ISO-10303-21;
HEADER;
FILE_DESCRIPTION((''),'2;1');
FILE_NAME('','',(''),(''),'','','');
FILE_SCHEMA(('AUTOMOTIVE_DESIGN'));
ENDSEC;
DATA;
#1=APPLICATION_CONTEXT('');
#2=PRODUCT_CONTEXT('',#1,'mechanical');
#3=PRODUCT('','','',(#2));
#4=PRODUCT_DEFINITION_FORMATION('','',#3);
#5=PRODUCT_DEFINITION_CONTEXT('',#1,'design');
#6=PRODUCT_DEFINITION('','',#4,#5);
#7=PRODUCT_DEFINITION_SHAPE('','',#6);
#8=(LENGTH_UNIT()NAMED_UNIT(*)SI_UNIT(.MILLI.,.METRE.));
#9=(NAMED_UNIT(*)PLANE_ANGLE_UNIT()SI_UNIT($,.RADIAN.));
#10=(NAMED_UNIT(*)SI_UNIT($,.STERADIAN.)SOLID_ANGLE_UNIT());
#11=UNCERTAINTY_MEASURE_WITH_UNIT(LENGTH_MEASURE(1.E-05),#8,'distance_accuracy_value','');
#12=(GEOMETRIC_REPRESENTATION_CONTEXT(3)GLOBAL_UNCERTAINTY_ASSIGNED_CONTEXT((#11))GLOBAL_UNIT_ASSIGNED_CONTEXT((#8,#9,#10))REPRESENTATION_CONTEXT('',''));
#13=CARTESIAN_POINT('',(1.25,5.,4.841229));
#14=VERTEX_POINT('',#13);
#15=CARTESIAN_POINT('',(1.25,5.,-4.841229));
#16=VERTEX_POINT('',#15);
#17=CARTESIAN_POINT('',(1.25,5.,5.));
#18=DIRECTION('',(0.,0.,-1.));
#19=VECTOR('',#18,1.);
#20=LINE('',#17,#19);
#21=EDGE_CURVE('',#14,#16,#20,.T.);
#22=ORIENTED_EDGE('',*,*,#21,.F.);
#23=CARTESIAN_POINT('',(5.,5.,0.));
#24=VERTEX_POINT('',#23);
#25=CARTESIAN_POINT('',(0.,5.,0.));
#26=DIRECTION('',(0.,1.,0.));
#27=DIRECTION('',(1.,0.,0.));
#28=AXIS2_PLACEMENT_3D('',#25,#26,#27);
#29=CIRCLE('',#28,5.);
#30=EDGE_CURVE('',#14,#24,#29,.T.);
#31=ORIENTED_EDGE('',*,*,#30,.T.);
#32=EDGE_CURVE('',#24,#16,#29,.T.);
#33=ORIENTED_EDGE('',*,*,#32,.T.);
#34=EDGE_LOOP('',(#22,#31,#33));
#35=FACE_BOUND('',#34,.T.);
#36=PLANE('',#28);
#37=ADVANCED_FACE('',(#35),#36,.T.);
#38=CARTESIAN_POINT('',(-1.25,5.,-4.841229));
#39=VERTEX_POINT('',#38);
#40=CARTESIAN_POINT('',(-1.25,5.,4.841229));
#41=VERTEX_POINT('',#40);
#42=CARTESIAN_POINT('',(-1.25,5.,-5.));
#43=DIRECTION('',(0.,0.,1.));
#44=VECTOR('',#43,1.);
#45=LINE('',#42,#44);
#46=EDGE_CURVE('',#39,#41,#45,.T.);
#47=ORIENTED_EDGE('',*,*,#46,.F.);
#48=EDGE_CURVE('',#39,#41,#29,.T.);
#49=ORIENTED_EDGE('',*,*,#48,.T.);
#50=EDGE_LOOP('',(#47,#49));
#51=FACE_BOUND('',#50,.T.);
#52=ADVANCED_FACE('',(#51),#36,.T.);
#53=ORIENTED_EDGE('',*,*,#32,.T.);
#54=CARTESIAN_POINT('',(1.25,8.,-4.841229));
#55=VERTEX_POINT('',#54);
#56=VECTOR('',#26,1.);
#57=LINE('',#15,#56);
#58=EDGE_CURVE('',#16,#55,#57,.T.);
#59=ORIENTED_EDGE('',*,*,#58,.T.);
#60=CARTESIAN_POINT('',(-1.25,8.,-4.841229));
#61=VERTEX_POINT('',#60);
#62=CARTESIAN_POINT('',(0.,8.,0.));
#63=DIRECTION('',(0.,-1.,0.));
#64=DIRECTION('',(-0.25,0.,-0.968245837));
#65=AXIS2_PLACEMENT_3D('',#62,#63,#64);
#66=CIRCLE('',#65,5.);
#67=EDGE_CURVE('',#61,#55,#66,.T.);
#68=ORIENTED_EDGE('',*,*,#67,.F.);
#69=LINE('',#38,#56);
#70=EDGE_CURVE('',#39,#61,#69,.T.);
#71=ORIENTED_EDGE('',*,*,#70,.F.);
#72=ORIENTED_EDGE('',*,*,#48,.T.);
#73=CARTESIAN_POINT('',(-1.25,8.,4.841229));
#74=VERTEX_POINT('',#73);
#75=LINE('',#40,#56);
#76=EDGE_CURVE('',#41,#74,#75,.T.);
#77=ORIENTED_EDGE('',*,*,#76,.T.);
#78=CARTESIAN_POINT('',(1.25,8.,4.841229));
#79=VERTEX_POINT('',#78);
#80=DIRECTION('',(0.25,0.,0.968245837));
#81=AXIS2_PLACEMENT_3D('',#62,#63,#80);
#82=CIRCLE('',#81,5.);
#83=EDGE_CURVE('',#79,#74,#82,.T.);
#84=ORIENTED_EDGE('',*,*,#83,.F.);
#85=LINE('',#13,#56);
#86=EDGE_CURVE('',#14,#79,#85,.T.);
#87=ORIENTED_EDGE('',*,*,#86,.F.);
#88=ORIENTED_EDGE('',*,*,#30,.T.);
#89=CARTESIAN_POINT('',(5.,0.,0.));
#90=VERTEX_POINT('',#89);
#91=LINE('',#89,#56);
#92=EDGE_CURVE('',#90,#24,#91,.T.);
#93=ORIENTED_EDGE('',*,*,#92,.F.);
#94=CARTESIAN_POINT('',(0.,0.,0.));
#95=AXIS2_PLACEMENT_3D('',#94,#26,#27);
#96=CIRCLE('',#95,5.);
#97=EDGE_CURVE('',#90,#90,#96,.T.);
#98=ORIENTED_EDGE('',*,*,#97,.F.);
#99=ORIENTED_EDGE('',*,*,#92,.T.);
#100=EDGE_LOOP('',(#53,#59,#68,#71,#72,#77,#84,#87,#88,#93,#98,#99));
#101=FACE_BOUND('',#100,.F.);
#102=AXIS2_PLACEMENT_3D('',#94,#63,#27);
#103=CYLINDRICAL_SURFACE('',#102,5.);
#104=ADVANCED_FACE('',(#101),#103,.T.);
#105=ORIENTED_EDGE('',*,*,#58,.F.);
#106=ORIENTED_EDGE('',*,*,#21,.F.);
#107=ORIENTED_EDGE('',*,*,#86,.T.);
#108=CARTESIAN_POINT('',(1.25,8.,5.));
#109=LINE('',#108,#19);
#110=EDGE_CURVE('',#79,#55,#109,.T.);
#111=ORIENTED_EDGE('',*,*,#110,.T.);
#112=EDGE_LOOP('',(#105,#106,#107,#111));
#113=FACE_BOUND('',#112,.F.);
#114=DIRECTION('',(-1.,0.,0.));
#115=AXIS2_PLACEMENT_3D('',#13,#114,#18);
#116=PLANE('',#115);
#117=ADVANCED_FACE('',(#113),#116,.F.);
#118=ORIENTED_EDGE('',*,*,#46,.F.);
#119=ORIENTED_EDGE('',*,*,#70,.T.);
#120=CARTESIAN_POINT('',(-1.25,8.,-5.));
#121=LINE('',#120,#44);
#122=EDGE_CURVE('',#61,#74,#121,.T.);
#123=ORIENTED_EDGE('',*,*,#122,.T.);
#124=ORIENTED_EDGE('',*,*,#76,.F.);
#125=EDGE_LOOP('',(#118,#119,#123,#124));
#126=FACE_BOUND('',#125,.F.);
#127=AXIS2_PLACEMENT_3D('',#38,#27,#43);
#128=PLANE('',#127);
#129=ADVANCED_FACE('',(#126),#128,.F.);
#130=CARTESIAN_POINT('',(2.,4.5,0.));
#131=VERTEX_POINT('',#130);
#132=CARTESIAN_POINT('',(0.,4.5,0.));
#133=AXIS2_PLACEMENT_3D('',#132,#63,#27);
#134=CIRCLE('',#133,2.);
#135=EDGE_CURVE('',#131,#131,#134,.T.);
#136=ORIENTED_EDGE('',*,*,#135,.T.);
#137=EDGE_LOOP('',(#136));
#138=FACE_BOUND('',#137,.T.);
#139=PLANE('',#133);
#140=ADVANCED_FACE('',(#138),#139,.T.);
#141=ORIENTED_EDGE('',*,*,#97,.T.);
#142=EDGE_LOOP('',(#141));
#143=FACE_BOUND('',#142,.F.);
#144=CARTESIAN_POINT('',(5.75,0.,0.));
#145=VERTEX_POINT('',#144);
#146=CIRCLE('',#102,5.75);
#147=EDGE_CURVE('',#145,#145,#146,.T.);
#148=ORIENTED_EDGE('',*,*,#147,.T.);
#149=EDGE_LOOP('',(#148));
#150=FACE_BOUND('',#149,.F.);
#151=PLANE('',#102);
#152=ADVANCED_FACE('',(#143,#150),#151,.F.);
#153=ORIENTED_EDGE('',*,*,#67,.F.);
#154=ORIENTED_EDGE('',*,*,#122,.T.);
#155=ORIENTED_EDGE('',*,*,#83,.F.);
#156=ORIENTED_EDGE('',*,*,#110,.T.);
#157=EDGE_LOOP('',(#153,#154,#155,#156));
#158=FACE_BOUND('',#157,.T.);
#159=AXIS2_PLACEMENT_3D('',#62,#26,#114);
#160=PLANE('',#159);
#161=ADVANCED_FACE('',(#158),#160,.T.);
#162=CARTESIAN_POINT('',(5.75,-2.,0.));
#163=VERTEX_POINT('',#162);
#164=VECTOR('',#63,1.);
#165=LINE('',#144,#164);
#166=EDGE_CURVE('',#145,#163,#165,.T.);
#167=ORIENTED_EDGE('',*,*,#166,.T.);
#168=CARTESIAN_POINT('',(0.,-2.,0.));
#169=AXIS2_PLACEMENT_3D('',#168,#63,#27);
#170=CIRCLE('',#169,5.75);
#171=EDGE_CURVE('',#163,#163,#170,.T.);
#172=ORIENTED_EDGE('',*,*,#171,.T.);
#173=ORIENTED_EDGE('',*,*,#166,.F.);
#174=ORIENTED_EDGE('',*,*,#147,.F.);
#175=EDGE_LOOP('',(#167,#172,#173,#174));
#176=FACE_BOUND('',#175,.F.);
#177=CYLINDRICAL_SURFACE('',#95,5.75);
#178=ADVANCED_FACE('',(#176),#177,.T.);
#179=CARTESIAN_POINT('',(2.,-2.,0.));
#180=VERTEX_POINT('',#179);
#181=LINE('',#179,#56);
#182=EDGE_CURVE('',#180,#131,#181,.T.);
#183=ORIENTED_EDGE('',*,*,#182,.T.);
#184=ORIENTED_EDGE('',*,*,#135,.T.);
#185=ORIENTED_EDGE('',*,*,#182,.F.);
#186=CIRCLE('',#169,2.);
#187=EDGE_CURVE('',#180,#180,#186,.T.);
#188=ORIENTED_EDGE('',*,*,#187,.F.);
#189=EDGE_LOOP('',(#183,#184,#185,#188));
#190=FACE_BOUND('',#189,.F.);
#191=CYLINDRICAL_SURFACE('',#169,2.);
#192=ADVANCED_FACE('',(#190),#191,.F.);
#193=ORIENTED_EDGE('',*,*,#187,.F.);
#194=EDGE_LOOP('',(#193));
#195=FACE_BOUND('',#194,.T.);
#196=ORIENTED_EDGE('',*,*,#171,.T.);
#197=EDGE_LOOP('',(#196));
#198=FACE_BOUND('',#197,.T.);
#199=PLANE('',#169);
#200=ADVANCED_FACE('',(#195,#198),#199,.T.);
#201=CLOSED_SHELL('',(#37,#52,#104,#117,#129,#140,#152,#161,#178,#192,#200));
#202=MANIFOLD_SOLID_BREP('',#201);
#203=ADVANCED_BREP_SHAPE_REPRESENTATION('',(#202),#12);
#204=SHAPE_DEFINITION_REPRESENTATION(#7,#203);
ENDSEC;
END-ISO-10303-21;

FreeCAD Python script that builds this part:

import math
import FreeCAD as App
import Part
import Sketcher

V = App.Vector

doc = App.newDocument("Part")
body = doc.addObject("PartDesign::Body", "Body")

# Sketch on XZ plane
sketch1 = body.newObject("Sketcher::SketchObject", "Sketch")
sketch1.AttachmentSupport = (doc.getObject("XZ_Plane"), [""])
sketch1.MapMode = "FlatFace"
sketch1.addGeometry(Part.Circle(V(0, 0, 0), V(0, 0, 1), 5), False)
sketch1.addConstraint(Sketcher.Constraint("Coincident", 0, 3, -1, 1))
sketch1.addConstraint(Sketcher.Constraint("Diameter", 0, 10.0))
pad1 = body.newObject("PartDesign::Pad", "Pad")
pad1.Profile = sketch1
pad1.Length = 5
pad1.Reversed = True

# Sketch on XZ plane
sketch2 = body.newObject("Sketcher::SketchObject", "Sketch001")
sketch2.AttachmentSupport = (doc.getObject("XZ_Plane"), [""])
sketch2.MapMode = "FlatFace"
sketch2.AttachmentOffset = App.Placement(V(0, 0, -5), App.Rotation())
sketch2.addGeometry(Part.LineSegment(V(-1.2, -4.8, 0), V(-1.2, 4.8, 0)), False)
sketch2.addGeometry(Part.ArcOfCircle(Part.Circle(V(0, 0, 0), V(0, 0, 1), 5), math.radians(76), math.radians(104)), False)
sketch2.addGeometry(Part.LineSegment(V(1.2, 4.8, 0), V(1.2, -4.8, 0)), False)
sketch2.addGeometry(Part.ArcOfCircle(Part.Circle(V(0, 0, 0), V(0, 0, 1), 5), math.radians(-104), math.radians(-76)), False)
sketch2.addConstraint(Sketcher.Constraint("Coincident", 0, 2, 1, 2))
sketch2.addConstraint(Sketcher.Constraint("Coincident", 1, 1, 2, 1))
sketch2.addConstraint(Sketcher.Constraint("Coincident", 2, 2, 3, 2))
sketch2.addConstraint(Sketcher.Constraint("Coincident", 3, 1, 0, 1))
sketch2.addConstraint(Sketcher.Constraint("Vertical", 0))
sketch2.addConstraint(Sketcher.Constraint("Vertical", 2))
sketch2.addConstraint(Sketcher.Constraint("Coincident", 1, 3, -1, 1))
sketch2.addConstraint(Sketcher.Constraint("Coincident", 3, 3, -1, 1))
sketch2.addConstraint(Sketcher.Constraint("Equal", 1, 3))
sketch2.addConstraint(Sketcher.Constraint("Horizontal", 0, 2, 1, 1))
sketch2.addConstraint(Sketcher.Constraint("Radius", 1, 5.0))
sketch2.addConstraint(Sketcher.Constraint("DistanceX", 0, 2, 1, 1, 2.5))
pad2 = body.newObject("PartDesign::Pad", "Pad001")
pad2.Profile = sketch2
pad2.Length = 3
pad2.Reversed = True

# Sketch on XZ plane
sketch3 = body.newObject("Sketcher::SketchObject", "Sketch002")
sketch3.AttachmentSupport = (doc.getObject("XZ_Plane"), [""])
sketch3.MapMode = "FlatFace"
sketch3.addGeometry(Part.Circle(V(0, 0, 0), V(0, 0, 1), 6), False)
sketch3.addConstraint(Sketcher.Constraint("Coincident", 0, 3, -1, 1))
sketch3.addConstraint(Sketcher.Constraint("Diameter", 0, 11.5))
pad3 = body.newObject("PartDesign::Pad", "Pad002")
pad3.Profile = sketch3
pad3.Length = 2

# Sketch on XZ plane
sketch4 = body.newObject("Sketcher::SketchObject", "Sketch003")
sketch4.AttachmentSupport = (doc.getObject("XZ_Plane"), [""])
sketch4.MapMode = "FlatFace"
sketch4.AttachmentOffset = App.Placement(V(0, 0, 2), App.Rotation())
sketch4.addGeometry(Part.Circle(V(0, 0, 0), V(0, 0, 1), 2), False)
sketch4.addConstraint(Sketcher.Constraint("Coincident", 0, 3, -1, 1))
sketch4.addConstraint(Sketcher.Constraint("Diameter", 0, 4.0))
pocket1 = body.newObject("PartDesign::Pocket", "Pocket")
pocket1.Profile = sketch4
pocket1.Length = 6.5

doc.recompute()
